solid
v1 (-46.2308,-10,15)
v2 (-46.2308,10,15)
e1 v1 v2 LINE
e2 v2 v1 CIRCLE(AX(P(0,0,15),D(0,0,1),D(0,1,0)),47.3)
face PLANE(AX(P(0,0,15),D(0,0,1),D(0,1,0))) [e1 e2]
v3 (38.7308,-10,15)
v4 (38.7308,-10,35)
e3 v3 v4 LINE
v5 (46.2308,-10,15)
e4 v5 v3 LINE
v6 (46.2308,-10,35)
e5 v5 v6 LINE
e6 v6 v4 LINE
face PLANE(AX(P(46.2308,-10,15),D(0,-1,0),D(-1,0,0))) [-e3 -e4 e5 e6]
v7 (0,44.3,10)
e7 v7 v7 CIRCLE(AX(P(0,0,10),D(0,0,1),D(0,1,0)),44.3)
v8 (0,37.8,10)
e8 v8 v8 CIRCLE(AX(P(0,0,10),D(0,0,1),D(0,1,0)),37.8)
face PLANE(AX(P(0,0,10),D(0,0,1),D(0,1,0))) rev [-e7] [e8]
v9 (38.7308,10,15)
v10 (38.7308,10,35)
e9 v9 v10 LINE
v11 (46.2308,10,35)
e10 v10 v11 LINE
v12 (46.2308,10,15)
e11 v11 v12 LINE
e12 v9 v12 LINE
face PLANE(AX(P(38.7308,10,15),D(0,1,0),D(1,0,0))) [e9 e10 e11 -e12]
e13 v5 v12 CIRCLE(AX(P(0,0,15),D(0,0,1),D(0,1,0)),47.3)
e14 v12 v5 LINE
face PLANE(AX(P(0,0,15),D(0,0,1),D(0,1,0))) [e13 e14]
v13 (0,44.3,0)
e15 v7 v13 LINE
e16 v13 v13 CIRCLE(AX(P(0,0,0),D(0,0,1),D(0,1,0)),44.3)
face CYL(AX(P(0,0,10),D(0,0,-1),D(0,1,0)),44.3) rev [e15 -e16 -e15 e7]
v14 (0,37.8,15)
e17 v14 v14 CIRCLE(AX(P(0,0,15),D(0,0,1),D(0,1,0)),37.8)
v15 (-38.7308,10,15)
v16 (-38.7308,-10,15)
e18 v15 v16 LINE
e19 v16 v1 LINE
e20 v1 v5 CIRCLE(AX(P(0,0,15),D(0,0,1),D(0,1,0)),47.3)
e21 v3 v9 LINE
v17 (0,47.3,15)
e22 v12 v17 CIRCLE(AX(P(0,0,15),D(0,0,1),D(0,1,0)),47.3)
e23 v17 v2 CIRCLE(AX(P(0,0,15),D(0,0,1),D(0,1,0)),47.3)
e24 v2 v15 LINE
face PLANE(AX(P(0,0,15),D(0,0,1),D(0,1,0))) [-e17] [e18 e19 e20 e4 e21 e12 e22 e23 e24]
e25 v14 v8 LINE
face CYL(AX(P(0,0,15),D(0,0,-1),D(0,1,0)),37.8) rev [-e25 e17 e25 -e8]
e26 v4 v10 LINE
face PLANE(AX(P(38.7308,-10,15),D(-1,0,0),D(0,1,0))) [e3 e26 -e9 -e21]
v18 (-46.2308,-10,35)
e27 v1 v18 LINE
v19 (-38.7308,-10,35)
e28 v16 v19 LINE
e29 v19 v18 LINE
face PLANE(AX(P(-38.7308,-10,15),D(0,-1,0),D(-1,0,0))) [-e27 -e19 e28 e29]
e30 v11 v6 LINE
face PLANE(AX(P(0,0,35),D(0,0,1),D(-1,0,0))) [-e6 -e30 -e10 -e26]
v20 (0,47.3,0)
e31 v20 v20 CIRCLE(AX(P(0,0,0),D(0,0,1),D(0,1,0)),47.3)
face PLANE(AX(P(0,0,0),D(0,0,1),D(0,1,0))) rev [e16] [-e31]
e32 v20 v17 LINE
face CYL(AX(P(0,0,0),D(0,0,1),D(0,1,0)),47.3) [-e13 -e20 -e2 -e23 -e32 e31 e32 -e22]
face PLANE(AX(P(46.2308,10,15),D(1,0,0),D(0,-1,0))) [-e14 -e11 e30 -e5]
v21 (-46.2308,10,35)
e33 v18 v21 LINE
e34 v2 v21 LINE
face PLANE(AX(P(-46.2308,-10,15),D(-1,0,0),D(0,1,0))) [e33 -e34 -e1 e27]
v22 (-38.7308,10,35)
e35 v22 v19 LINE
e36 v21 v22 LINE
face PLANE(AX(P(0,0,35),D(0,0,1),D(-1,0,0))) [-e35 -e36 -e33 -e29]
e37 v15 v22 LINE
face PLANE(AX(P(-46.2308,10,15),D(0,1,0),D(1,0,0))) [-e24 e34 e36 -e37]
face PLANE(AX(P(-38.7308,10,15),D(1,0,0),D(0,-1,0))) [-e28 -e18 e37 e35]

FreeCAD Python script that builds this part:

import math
import FreeCAD as App
import Part
import Sketcher
from FreeCAD import Vector


def add_polygon(sketch, points):
    """Adds a closed chain of lines whose ends are joined by coincident constraints."""
    first, n = sketch.GeometryCount, len(points)
    for a, b in zip(points, points[1:] + points[:1]):
        sketch.addGeometry(Part.LineSegment(App.Vector(*a, 0), App.Vector(*b, 0)), False)
    for i in range(n):
        sketch.addConstraint(Sketcher.Constraint("Coincident", first + i, 2, first + (i + 1) % n, 1))

doc = App.newDocument("Part")
body = doc.addObject("PartDesign::Body", "Body")

# Sketch on YZ plane
sketch1 = body.newObject("Sketcher::SketchObject", "Sketch")
sketch1.AttachmentSupport = (doc.getObject("YZ_Plane"), [""])
sketch1.MapMode = "FlatFace"
add_polygon(sketch1, [(44.3, 10), (44.3, 0), (47.3, 0), (47.3, 15), (37.8, 15), (37.8, 10)])  # lines 0-5
sketch1.addConstraint([
    Sketcher.Constraint("Vertical", 0),
    Sketcher.Constraint("Horizontal", 1),
    Sketcher.Constraint("Vertical", 2),
    Sketcher.Constraint("Horizontal", 3),
    Sketcher.Constraint("Vertical", 4),
    Sketcher.Constraint("Horizontal", 5),
    Sketcher.Constraint("PointOnObject", 0, 2, -1),
    Sketcher.Constraint("DistanceX", 1, 1, 1, 2, 3.0),
    Sketcher.Constraint("DistanceY", 0, 2, 0, 1, 10.0),
    Sketcher.Constraint("DistanceY", 4, 2, 4, 1, 5.0),
    Sketcher.Constraint("DistanceX", 5, 1, 5, 2, 6.5),
    Sketcher.Constraint("DistanceX", -1, 1, 0, 2, 44.3),
])
revolution = body.newObject("PartDesign::Revolution", "Revolution")
revolution.Profile = sketch1
revolution.ReferenceAxis = (sketch1, ["V_Axis"])
revolution.Angle = 360

# Sketch on XY plane
sketch2 = body.newObject("Sketcher::SketchObject", "Sketch001")
sketch2.AttachmentSupport = (doc.getObject("XY_Plane"), [""])
sketch2.MapMode = "FlatFace"
sketch2.AttachmentOffset = App.Placement(Vector(0, 0, 15), App.Rotation())
add_polygon(sketch2, [(-46, 10), (-46, -10), (-39, -10), (-39, 10)])  # lines 0-3
add_polygon(sketch2, [(39, -10), (46, -10), (46, 10), (39, 10)])  # lines 4-7
sketch2.addConstraint([
    Sketcher.Constraint("Vertical", 0),
    Sketcher.Constraint("Horizontal", 1),
    Sketcher.Constraint("Vertical", 2),
    Sketcher.Constraint("Horizontal", 3),
    Sketcher.Constraint("Horizontal", 4),
    Sketcher.Constraint("Vertical", 5),
    Sketcher.Constraint("Horizontal", 6),
    Sketcher.Constraint("Vertical", 7),
    Sketcher.Constraint("Symmetric", 3, 2, 4, 2, -1, 1),
    Sketcher.Constraint("Symmetric", 1, 2, 6, 2, -1, 1),
    Sketcher.Constraint("Horizontal", 1, 2, 4, 2),
    Sketcher.Constraint("DistanceY", 0, 2, 0, 1, 20.0),
    Sketcher.Constraint("DistanceX", 1, 1, 1, 2, 7.5),
    Sketcher.Constraint("DistanceX", 0, 2, -1, 1, 46.2308),
])
pad1 = body.newObject("PartDesign::Pad", "Pad")
pad1.Profile = sketch2
pad1.Length = 20

# Sketch on YZ plane
sketch3 = body.newObject("Sketcher::SketchObject", "Sketch002")
sketch3.AttachmentSupport = (doc.getObject("YZ_Plane"), [""])
sketch3.MapMode = "FlatFace"
sketch3.AttachmentOffset = App.Placement(Vector(0, 0, 46.2308), App.Rotation())
sketch3.addGeometry([
    Part.LineSegment(Vector(-10, 35, 0), Vector(-10, 25, 0)),  # 0
    Part.ArcOfCircle(Part.Circle(Vector(0, 25, 0), Vector(0, 0, 1), 10), math.radians(90), math.radians(180)),  # 1
    Part.LineSegment(Vector(0, 35, 0), Vector(-10, 35, 0)),  # 2
    Part.ArcOfCircle(Part.Circle(Vector(0, 25, 0), Vector(0, 0, 1), 10), math.radians(0), math.radians(90)),  # 3
    Part.LineSegment(Vector(10, 25, 0), Vector(10, 35, 0)),  # 4
    Part.LineSegment(Vector(10, 35, 0), Vector(0, 35, 0)),  # 5
    Part.Circle(Vector(0, 25, 0), Vector(0, 0, 1), 3.5),  # 6
], False)
sketch3.addConstraint([
    Sketcher.Constraint("Tangent", 0, 2, 1, 2),
    Sketcher.Constraint("Tangent", 1, 1, 2, 1),
    Sketcher.Constraint("Coincident", 2, 2, 0, 1),
    Sketcher.Constraint("Tangent", 3, 1, 4, 1),
    Sketcher.Constraint("Coincident", 4, 2, 5, 1),
    Sketcher.Constraint("Tangent", 5, 2, 3, 2),
    Sketcher.Constraint("Vertical", 0),
    Sketcher.Constraint("Horizontal", 2),
    Sketcher.Constraint("Vertical", 4),
    Sketcher.Constraint("Horizontal", 5),
    Sketcher.Constraint("Coincident", 3, 3, 1, 3),
    Sketcher.Constraint("Coincident", 6, 3, 1, 3),
    Sketcher.Constraint("Equal", 1, 3),
    Sketcher.Constraint("PointOnObject", 1, 3, -2),
    Sketcher.Constraint("Diameter", 6, 7.0),
    Sketcher.Constraint("Radius", 1, 10.0),
    Sketcher.Constraint("DistanceY", -1, 1, 1, 3, 25.0),
])
pocket1 = body.newObject("PartDesign::Pocket", "Pocket")
pocket1.Profile = sketch3
pocket1.Type = "ThroughAll"
pocket1.Reversed = True

doc.recompute()
